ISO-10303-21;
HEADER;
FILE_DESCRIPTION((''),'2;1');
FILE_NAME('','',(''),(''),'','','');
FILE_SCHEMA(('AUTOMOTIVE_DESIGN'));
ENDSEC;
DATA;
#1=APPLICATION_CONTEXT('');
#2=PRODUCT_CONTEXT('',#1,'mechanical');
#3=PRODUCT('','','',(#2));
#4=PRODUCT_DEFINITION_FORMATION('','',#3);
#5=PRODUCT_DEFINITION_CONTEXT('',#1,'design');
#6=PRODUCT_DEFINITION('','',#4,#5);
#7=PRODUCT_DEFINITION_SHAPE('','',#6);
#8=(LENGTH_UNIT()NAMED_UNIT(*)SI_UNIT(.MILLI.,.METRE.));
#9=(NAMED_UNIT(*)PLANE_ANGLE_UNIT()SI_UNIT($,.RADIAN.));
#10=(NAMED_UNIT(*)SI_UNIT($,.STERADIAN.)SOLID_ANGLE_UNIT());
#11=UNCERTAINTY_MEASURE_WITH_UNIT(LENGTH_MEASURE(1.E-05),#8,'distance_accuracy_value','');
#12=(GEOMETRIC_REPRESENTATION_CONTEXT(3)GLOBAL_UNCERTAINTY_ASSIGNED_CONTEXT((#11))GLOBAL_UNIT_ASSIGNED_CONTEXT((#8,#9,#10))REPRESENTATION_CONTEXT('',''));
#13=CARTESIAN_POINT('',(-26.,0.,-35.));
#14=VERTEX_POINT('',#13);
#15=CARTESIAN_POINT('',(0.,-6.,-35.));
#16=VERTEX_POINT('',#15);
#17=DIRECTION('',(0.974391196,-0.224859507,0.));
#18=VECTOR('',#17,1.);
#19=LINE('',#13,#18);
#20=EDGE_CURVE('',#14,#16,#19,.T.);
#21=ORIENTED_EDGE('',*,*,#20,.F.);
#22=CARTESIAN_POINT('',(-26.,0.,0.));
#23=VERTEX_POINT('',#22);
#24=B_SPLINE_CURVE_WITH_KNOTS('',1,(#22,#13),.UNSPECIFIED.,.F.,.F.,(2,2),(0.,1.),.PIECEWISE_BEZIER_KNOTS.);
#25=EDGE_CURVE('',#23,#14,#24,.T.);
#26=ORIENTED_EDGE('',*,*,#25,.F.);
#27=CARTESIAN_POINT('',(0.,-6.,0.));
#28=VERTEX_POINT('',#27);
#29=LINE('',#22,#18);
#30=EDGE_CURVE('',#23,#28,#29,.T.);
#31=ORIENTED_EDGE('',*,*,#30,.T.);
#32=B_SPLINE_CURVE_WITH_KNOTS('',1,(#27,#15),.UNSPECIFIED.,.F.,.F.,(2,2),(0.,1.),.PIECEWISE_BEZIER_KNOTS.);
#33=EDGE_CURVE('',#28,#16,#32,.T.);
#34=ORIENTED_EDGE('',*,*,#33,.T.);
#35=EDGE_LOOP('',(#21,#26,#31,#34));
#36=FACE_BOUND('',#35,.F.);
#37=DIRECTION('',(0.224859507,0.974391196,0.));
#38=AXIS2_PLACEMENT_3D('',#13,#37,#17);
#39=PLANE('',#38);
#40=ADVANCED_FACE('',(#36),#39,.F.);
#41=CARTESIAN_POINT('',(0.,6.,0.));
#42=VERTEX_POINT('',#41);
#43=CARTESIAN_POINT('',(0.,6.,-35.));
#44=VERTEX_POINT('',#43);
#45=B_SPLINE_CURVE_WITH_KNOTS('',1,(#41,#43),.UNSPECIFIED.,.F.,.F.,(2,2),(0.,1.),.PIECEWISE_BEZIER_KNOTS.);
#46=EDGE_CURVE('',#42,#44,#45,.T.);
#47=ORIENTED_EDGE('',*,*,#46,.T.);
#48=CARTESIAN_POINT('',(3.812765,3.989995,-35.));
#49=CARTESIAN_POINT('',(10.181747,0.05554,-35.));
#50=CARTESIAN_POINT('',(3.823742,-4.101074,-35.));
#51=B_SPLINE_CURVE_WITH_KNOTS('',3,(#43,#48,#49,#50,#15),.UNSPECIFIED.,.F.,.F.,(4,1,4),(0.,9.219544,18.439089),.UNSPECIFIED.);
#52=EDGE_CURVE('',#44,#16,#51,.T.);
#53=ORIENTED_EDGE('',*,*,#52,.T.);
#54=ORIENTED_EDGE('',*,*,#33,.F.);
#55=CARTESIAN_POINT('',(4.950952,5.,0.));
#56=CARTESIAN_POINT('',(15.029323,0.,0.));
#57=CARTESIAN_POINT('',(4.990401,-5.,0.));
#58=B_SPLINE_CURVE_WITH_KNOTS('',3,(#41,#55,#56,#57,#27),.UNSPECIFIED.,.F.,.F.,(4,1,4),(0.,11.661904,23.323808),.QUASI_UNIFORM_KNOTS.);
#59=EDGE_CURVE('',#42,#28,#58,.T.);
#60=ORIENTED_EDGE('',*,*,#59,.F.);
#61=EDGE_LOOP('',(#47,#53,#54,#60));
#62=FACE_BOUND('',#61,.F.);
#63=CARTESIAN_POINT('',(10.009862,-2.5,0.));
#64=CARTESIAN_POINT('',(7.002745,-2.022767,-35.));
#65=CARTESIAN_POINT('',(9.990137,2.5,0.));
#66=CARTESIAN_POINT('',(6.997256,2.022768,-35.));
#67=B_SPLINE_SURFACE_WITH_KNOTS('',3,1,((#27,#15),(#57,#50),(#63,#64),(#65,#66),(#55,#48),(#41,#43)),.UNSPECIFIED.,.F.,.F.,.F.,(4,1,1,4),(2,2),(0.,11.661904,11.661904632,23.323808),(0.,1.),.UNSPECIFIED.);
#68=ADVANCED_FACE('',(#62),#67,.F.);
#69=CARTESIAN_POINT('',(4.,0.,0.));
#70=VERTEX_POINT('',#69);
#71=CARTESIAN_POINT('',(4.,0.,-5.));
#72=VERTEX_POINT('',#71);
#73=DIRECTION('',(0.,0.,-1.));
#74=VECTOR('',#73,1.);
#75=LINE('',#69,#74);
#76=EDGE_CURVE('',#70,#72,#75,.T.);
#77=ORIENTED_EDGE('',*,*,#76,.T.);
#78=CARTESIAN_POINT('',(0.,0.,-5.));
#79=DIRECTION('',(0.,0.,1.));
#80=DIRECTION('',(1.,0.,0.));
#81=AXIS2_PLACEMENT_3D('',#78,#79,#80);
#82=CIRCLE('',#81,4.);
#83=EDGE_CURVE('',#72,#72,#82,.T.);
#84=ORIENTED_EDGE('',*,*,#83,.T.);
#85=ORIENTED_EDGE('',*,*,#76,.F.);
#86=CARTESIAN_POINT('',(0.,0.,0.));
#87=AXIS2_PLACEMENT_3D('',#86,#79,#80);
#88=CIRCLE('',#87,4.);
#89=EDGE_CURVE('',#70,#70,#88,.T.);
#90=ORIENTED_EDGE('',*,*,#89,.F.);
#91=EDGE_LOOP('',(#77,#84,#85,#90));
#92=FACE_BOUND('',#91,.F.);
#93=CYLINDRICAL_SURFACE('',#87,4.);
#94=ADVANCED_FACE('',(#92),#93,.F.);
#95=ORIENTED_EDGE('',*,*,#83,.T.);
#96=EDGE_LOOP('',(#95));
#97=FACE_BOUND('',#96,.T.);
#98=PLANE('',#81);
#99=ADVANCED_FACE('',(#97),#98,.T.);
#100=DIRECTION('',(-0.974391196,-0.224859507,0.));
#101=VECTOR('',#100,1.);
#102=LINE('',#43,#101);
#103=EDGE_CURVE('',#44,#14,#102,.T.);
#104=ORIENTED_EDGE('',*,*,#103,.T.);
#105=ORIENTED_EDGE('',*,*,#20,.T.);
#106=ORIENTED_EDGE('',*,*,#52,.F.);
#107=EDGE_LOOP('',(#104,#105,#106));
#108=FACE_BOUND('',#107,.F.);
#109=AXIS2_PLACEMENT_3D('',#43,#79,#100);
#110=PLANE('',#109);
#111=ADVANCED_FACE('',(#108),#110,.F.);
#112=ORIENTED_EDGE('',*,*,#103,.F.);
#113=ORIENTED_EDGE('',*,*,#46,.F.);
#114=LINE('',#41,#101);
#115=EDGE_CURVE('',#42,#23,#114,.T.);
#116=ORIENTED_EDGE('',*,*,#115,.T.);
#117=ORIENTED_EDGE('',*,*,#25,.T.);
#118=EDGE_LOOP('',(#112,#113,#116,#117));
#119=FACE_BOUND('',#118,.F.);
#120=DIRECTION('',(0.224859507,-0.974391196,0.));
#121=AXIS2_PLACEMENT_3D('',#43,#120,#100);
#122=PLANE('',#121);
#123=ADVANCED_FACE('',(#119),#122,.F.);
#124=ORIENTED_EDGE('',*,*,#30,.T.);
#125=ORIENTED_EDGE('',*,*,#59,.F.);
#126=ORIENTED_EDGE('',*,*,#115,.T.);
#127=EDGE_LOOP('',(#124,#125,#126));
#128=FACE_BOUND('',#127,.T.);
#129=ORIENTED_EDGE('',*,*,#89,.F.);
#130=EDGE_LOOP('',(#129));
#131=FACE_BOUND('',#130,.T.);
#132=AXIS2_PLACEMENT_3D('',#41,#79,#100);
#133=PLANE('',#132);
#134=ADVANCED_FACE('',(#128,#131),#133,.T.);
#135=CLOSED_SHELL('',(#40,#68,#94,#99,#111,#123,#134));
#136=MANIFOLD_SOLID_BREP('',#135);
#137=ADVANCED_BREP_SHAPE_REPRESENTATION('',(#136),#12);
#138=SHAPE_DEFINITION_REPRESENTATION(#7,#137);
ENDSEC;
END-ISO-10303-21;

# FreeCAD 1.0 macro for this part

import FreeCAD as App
import Part
import Sketcher

V = App.Vector
Q = App.Units.Quantity

doc = App.newDocument("Part")
body = doc.addObject("PartDesign::Body", "Body")

sketch1 = body.newObject("Sketcher::SketchObject", "Sketch")
sketch1.AttachmentSupport = (doc.getObject("XY_Plane"), [""])
sketch1.MapMode = "FlatFace"
sketch1.addGeometry(Part.LineSegment(V(0, 6, 0), V(-26, 0, 0)), False)
sketch1.addGeometry(Part.LineSegment(V(-26, 0, 0), V(0, -6, 0)), False)
sketch1.addGeometry(Part.BSplineCurve([V(0, 6, 0), V(4.950952, 5, 0), V(15.029323, 0, 0), V(4.990401, -5, 0), V(0, -6, 0)], [4, 1, 4], [0, 11.661904, 23.323808], False, 3, [1, 1, 1, 1, 1], False), False)
sketch1.addConstraint(Sketcher.Constraint("Block", 2))
sketch1.addConstraint(Sketcher.Constraint("Coincident", 0, 2, 1, 1))
sketch1.addConstraint(Sketcher.Constraint("Coincident", 1, 2, 2, 2))
sketch1.addConstraint(Sketcher.Constraint("Coincident", 2, 1, 0, 1))
sketch1.addConstraint(Sketcher.Constraint("PointOnObject", 0, 2, -1))
sketch1.addConstraint(Sketcher.Constraint("DistanceX", 0, 2, -1, 1, Q("26 mm")))

sketch2 = body.newObject("Sketcher::SketchObject", "Sketch001")
sketch2.AttachmentSupport = (doc.getObject("XY_Plane"), [""])
sketch2.MapMode = "FlatFace"
sketch2.AttachmentOffset = App.Placement(V(0, 0, -35), App.Rotation())
sketch2.addGeometry(Part.LineSegment(V(0, 6, 0), V(-26, 0, 0)), False)
sketch2.addGeometry(Part.LineSegment(V(-26, 0, 0), V(0, -6, 0)), False)
sketch2.addGeometry(Part.BSplineCurve([V(0, 6, 0), V(3.812765, 3.989995, 0), V(10.181747, 0.05554, 0), V(3.823742, -4.101074, 0), V(0, -6, 0)], [4, 1, 4], [0, 9.219544, 18.439089], False, 3, [1, 1, 1, 1, 1], False), False)
sketch2.addConstraint(Sketcher.Constraint("Block", 2))
sketch2.addConstraint(Sketcher.Constraint("Coincident", 0, 2, 1, 1))
sketch2.addConstraint(Sketcher.Constraint("Coincident", 1, 2, 2, 2))
sketch2.addConstraint(Sketcher.Constraint("Coincident", 2, 1, 0, 1))
sketch2.addConstraint(Sketcher.Constraint("PointOnObject", 0, 2, -1))
sketch2.addConstraint(Sketcher.Constraint("DistanceX", 0, 2, -1, 1, Q("26 mm")))

additiveloft = body.newObject("PartDesign::AdditiveLoft", "AdditiveLoft")
additiveloft.Profile = sketch1
additiveloft.Sections = [sketch2]

sketch3 = body.newObject("Sketcher::SketchObject", "Sketch002")
sketch3.AttachmentSupport = (doc.getObject("XY_Plane"), [""])
sketch3.MapMode = "FlatFace"
sketch3.addGeometry(Part.Circle(V(0, 0, 0), V(0, 0, 1), 4), False)
sketch3.addConstraint(Sketcher.Constraint("Coincident", 0, 3, -1, 1))
sketch3.addConstraint(Sketcher.Constraint("Diameter", 0, Q("8 mm")))
pocket1 = body.newObject("PartDesign::Pocket", "Pocket")
pocket1.Profile = sketch3
pocket1.Length = 5

doc.recompute()
